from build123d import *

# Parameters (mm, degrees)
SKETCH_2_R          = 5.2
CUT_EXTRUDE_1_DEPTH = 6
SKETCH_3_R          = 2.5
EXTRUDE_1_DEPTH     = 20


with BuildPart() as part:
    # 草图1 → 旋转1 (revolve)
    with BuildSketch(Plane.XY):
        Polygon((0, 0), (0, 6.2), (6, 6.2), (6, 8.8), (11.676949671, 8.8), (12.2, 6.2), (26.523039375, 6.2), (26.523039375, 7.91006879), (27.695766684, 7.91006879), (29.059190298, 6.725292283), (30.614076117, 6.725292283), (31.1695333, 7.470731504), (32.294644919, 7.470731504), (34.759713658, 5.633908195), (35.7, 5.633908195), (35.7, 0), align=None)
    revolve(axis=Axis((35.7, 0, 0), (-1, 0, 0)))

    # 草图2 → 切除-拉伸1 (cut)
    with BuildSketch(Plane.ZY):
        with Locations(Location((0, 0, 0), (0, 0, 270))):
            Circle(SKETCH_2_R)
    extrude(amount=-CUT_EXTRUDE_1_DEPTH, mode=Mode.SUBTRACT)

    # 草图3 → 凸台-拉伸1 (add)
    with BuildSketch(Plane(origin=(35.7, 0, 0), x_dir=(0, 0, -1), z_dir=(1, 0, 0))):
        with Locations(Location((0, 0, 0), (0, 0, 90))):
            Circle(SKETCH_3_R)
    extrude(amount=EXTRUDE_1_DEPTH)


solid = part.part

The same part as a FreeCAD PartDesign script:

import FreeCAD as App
import Part
import Sketcher

V = App.Vector


def add_polygon(sketch, points):
    """Adds a closed chain of lines whose ends are joined by coincident constraints."""
    first, n = sketch.GeometryCount, len(points)
    for a, b in zip(points, points[1:] + points[:1]):
        sketch.addGeometry(Part.LineSegment(App.Vector(*a, 0), App.Vector(*b, 0)), False)
    for i in range(n):
        sketch.addConstraint(Sketcher.Constraint("Coincident", first + i, 2, first + (i + 1) % n, 1))

doc = App.newDocument("Part")
body = doc.addObject("PartDesign::Body", "Body")

sketch1 = body.newObject("Sketcher::SketchObject", "Sketch")
sketch1.AttachmentSupport = (doc.getObject("XY_Plane"), [""])
sketch1.MapMode = "FlatFace"
add_polygon(sketch1, [(0, 6.2), (0, 0), (35.7, 0), (35.7, 5.6), (34.8, 5.6), (32.3, 7.5), (31.2, 7.5), (30.6, 6.7), (29.1, 6.7), (27.7, 7.9), (26.5, 7.9), (26.5, 6.2), (12.2, 6.2), (11.7, 8.8), (6, 8.8), (6, 6.2)])
sketch1.addConstraint([
    Sketcher.Constraint("Vertical", 0),
    Sketcher.Constraint("Horizontal", 1),
    Sketcher.Constraint("Vertical", 2),
    Sketcher.Constraint("Horizontal", 3),
    Sketcher.Constraint("Horizontal", 5),
    Sketcher.Constraint("Horizontal", 7),
    Sketcher.Constraint("Horizontal", 9),
    Sketcher.Constraint("Vertical", 10),
    Sketcher.Constraint("Horizontal", 11),
    Sketcher.Constraint("Horizontal", 13),
    Sketcher.Constraint("Vertical", 14),
    Sketcher.Constraint("Horizontal", 15),
    Sketcher.Constraint("Coincident", 0, 2, -1, 1),
    Sketcher.Constraint("Perpendicular", 4, 6),
    Sketcher.Constraint("Horizontal", 11, 2, 14, 2),
    Sketcher.Constraint("DistanceX", 15, 2, 15, 1, 6.0),
    Sketcher.Constraint("DistanceX", 1, 1, 1, 2, 35.7),
    Sketcher.Constraint("DistanceY", 0, 2, 0, 1, 6.2),
    Sketcher.Constraint("DistanceY", 14, 2, 14, 1, 2.6),
    Sketcher.Constraint("DistanceX", -1, 1, 11, 2, 12.2),
    Sketcher.Constraint("DistanceX", 5, 2, 5, 1, 1.125112),
    Sketcher.Constraint("DistanceX", 11, 2, 11, 1, 14.323039),
    Sketcher.Constraint("DistanceX", 13, 2, 13, 1, 5.67695),
    Sketcher.Constraint("DistanceY", 2, 1, 2, 2, 5.633908),
    Sketcher.Constraint("DistanceY", 10, 2, 10, 1, 1.710069),
    Sketcher.Constraint("Distance", 6, 0.92963),
    Sketcher.Constraint("DistanceX", 3, 2, 3, 1, 0.940286),
    Sketcher.Constraint("DistanceX", 7, 2, 7, 1, 1.554886),
    Sketcher.Constraint("DistanceX", 9, 2, 9, 1, 1.172727),
    Sketcher.Constraint("DistanceY", -1, 1, 4, 2, 7.470732),
    Sketcher.Constraint("DistanceX", -1, 1, 7, 2, 29.05919),
])
revolution = body.newObject("PartDesign::Revolution", "Revolution")
revolution.Profile = sketch1
revolution.ReferenceAxis = (sketch1, ["H_Axis"])
revolution.Angle = 360

sketch2 = body.newObject("Sketcher::SketchObject", "Sketch001")
sketch2.AttachmentSupport = (doc.getObject("YZ_Plane"), [""])
sketch2.MapMode = "FlatFace"
sketch2.addGeometry(Part.Circle(V(0, 0, 0), V(0, 0, 1), 5), False)
sketch2.addConstraint([
    Sketcher.Constraint("Coincident", 0, 3, -1, 1),
    Sketcher.Constraint("Diameter", 0, 10.4),
])
pocket1 = body.newObject("PartDesign::Pocket", "Pocket")
pocket1.Profile = sketch2
pocket1.Length = 6
pocket1.Reversed = True

sketch3 = body.newObject("Sketcher::SketchObject", "Sketch002")
sketch3.AttachmentSupport = (doc.getObject("YZ_Plane"), [""])
sketch3.MapMode = "FlatFace"
sketch3.AttachmentOffset = App.Placement(V(0, 0, 35.7), App.Rotation())
sketch3.addGeometry(Part.Circle(V(0, 0, 0), V(0, 0, 1), 2.5), False)
sketch3.addConstraint([
    Sketcher.Constraint("Coincident", 0, 3, -1, 1),
    Sketcher.Constraint("Diameter", 0, 5.0),
])
pad1 = body.newObject("PartDesign::Pad", "Pad")
pad1.Profile = sketch3
pad1.Length = 20

doc.recompute()
